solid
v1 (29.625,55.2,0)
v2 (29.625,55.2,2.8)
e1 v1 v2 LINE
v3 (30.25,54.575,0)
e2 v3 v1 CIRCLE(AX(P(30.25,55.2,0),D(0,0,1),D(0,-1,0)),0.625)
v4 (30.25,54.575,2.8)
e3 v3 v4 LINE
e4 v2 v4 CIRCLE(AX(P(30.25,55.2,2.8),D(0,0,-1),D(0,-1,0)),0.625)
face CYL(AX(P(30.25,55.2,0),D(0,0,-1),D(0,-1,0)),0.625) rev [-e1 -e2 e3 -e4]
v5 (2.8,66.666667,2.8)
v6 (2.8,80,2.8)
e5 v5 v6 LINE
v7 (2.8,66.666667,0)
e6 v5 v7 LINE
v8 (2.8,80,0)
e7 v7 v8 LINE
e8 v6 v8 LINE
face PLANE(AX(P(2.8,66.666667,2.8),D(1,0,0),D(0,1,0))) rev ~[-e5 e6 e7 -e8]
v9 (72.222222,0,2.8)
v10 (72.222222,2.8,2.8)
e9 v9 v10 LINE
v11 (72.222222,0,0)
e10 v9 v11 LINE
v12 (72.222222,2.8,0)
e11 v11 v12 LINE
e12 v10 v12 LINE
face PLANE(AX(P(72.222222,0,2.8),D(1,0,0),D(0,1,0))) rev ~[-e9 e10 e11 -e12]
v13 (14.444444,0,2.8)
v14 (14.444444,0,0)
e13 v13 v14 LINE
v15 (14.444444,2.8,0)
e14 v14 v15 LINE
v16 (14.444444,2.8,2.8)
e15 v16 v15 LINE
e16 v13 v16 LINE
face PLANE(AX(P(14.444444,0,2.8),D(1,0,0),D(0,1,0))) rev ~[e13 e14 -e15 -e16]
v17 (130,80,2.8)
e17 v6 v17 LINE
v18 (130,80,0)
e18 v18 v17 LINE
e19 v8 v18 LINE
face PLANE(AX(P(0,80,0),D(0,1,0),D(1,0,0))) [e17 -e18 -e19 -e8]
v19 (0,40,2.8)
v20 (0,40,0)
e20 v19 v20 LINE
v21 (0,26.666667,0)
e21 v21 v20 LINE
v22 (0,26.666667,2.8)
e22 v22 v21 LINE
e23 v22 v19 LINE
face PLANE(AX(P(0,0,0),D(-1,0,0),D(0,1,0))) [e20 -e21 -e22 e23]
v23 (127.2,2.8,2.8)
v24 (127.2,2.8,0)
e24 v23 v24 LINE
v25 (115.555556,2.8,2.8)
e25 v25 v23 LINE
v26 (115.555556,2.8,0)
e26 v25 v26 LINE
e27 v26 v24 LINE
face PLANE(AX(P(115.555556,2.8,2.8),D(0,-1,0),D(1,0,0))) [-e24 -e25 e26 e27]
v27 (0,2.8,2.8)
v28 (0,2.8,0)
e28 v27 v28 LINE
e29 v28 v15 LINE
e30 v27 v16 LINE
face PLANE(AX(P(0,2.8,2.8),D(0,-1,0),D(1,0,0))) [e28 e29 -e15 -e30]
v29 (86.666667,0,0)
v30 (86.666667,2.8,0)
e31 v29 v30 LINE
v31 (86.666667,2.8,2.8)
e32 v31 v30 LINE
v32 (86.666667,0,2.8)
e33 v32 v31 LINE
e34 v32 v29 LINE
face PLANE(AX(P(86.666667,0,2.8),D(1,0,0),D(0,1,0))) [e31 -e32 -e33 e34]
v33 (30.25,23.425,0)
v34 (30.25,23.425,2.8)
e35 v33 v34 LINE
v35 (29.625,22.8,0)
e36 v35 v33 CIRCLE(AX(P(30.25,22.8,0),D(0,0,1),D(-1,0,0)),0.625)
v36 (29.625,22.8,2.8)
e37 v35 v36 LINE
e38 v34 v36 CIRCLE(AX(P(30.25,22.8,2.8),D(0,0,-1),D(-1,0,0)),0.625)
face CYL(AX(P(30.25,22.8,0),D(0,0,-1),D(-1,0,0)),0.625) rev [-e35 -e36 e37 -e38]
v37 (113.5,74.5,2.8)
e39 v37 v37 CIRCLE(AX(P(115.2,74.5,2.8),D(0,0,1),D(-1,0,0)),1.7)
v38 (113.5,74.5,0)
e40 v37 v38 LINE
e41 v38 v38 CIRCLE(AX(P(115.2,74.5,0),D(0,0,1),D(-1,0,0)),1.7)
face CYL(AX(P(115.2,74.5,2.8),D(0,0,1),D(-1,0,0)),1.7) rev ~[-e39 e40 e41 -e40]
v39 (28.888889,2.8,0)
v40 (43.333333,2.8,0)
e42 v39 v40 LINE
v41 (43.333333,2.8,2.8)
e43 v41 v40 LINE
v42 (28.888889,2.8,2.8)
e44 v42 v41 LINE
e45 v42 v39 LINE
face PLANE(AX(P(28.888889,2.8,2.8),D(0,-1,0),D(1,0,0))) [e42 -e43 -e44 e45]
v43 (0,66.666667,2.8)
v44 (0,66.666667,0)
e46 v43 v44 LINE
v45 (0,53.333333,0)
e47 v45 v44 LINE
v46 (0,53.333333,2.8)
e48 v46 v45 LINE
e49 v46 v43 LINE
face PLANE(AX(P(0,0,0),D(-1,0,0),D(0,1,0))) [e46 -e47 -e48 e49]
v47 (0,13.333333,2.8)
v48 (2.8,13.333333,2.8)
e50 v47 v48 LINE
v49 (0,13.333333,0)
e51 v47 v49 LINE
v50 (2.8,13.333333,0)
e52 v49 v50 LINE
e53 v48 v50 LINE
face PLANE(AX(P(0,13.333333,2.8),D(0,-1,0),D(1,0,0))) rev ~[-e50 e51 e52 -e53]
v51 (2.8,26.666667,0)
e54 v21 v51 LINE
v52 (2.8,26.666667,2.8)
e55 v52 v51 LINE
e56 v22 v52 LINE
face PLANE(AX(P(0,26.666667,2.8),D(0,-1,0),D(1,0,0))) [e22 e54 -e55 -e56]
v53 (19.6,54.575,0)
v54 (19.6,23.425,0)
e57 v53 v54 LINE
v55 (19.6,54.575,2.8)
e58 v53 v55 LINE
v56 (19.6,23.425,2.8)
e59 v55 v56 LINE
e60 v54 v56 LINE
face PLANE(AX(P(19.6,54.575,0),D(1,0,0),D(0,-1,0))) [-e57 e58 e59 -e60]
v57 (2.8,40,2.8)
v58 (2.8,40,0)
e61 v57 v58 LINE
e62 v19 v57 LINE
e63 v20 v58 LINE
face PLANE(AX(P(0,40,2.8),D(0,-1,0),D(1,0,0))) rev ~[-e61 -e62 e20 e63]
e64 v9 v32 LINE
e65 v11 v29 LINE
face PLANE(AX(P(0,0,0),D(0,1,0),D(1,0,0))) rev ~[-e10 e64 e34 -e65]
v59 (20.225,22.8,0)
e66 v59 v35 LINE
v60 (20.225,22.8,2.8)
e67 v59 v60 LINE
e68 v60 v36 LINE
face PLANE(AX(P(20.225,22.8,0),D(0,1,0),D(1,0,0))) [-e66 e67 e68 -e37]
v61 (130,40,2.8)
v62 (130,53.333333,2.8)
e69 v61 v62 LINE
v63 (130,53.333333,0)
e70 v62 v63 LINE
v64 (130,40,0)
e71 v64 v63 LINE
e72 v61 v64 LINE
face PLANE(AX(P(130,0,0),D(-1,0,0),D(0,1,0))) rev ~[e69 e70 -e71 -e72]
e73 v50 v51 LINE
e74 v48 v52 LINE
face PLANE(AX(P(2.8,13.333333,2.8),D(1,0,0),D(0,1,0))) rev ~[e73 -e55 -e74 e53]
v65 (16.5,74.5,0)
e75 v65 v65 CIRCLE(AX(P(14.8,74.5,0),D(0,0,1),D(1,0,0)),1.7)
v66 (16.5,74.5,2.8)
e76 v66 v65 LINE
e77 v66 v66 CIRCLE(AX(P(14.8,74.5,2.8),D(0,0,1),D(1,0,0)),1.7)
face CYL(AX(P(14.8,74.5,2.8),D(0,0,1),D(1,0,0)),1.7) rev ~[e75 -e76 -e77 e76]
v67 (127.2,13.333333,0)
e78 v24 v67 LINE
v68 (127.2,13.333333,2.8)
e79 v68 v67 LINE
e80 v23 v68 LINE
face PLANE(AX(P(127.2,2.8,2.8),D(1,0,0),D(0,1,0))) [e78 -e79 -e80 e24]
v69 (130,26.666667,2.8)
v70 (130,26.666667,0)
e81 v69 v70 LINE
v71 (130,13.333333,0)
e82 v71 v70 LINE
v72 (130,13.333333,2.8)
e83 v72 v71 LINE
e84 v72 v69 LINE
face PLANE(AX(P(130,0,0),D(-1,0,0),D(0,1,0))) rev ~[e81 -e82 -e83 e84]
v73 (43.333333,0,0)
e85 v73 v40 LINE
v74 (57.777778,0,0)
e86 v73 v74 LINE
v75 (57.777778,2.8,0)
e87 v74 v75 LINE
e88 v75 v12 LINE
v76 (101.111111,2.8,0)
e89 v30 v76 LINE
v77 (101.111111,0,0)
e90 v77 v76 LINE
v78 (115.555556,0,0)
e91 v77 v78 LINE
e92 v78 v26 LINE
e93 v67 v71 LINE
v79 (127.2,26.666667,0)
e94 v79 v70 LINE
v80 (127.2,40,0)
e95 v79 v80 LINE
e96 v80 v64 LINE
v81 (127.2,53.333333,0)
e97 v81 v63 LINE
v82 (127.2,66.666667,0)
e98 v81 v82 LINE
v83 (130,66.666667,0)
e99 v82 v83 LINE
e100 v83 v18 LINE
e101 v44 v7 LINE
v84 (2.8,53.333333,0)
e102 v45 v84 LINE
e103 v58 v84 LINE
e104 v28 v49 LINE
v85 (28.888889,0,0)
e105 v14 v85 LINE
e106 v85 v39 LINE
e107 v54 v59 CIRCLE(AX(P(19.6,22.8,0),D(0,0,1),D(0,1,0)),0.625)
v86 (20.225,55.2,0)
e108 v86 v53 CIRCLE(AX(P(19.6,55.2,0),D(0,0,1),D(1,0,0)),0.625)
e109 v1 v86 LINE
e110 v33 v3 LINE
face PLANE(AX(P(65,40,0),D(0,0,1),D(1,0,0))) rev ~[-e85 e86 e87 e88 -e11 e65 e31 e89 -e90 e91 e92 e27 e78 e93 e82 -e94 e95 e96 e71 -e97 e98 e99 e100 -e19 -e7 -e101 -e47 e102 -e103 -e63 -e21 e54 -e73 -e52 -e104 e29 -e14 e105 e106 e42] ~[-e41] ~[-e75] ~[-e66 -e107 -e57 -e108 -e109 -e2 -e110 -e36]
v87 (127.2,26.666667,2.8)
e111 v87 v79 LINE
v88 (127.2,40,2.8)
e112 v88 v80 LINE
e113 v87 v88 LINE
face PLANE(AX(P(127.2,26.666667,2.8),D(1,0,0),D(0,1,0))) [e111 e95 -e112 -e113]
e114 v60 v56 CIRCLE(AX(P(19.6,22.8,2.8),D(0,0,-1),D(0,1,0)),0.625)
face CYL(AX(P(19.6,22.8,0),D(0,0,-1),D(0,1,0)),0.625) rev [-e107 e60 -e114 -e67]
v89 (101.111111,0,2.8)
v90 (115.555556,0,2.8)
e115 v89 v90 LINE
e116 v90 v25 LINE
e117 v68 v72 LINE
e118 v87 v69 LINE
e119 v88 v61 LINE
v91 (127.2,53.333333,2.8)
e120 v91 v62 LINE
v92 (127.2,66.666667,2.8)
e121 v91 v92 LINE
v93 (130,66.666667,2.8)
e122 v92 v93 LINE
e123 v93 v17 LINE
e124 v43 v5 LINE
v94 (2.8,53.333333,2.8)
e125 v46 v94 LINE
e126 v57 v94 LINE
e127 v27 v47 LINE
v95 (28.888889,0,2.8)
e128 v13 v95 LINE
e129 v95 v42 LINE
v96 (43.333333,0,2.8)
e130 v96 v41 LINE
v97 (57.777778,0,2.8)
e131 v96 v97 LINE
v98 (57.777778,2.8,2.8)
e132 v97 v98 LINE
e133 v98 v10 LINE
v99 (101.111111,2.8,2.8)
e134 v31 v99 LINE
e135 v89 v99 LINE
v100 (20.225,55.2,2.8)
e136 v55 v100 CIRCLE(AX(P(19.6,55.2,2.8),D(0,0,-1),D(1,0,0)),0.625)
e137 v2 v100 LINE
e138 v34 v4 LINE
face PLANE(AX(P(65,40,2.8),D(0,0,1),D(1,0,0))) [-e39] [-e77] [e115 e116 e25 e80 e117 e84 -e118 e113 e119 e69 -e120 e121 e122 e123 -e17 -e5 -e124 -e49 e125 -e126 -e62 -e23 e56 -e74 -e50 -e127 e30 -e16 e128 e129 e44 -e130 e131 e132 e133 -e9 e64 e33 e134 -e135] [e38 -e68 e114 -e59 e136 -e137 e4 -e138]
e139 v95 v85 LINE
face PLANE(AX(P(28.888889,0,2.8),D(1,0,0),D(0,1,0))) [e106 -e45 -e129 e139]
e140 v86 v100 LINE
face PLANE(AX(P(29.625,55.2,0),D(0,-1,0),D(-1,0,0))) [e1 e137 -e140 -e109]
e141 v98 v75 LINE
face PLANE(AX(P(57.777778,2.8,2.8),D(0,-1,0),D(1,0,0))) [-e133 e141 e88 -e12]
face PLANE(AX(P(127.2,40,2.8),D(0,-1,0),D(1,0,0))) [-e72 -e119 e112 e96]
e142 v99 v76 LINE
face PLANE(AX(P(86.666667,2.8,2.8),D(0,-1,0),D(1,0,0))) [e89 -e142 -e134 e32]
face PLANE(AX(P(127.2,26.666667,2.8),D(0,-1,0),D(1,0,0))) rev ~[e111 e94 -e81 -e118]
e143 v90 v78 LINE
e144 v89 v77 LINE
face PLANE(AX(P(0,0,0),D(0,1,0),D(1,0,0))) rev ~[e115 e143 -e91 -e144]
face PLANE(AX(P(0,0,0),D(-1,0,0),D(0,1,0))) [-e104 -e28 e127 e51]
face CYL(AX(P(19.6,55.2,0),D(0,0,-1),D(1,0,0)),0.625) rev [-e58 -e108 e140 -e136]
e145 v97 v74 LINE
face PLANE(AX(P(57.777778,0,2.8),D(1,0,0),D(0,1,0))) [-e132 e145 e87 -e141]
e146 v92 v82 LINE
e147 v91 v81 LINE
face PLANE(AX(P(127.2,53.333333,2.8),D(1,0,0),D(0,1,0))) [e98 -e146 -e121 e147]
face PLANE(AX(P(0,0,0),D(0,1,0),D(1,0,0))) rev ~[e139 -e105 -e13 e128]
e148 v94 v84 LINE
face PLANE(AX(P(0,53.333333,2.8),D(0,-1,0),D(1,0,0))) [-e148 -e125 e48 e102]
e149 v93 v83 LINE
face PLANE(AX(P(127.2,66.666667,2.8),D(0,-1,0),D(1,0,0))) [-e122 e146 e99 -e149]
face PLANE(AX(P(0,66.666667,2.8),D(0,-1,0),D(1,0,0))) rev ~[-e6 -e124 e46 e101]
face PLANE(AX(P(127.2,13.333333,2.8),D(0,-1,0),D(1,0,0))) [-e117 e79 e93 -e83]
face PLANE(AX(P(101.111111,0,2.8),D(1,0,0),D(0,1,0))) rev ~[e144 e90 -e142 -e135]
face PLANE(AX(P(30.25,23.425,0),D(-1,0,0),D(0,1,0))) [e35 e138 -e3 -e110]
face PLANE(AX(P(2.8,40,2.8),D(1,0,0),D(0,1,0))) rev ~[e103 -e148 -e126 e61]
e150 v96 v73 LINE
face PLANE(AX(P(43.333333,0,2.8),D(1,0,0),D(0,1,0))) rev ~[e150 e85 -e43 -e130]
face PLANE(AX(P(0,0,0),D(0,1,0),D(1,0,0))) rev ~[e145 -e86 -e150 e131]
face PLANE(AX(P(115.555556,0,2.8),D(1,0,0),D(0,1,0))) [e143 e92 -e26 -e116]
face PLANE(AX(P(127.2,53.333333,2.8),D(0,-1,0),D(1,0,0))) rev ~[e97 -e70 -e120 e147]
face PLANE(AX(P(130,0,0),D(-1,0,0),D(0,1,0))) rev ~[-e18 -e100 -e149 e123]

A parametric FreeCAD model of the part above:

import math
import FreeCAD as App
import Part
import Sketcher


def add_polygon(sketch, points):
    """Adds a closed chain of lines whose ends are joined by coincident constraints."""
    first, n = sketch.GeometryCount, len(points)
    for a, b in zip(points, points[1:] + points[:1]):
        sketch.addGeometry(Part.LineSegment(App.Vector(*a, 0), App.Vector(*b, 0)), False)
    for i in range(n):
        sketch.addConstraint(Sketcher.Constraint("Coincident", first + i, 2, first + (i + 1) % n, 1))

doc = App.newDocument("Part")
body = doc.addObject("PartDesign::Body", "Body")

sketch1 = doc.addObject("Sketcher::SketchObject", "Sketch")
body.addObject(sketch1)
sketch1.AttachmentSupport = (doc.XY_Plane, [""])
sketch1.MapMode = "FlatFace"
add_polygon(sketch1, [(0, 80), (0, 0), (130, 0), (130, 80)])
sketch1.addConstraint([
    Sketcher.Constraint("Vertical", 0),
    Sketcher.Constraint("Horizontal", 1),
    Sketcher.Constraint("Vertical", 2),
    Sketcher.Constraint("Horizontal", 3),
    Sketcher.Constraint("Coincident", 0, 2, -1, 1),
    Sketcher.Constraint("DistanceX", 1, 1, 1, 2, 130.0),
    Sketcher.Constraint("DistanceY", 0, 2, 0, 1, 80.0),
])
pad1 = doc.addObject("PartDesign::Pad", "Pad")
body.addObject(pad1)
pad1.Profile = sketch1
pad1.Length = 2.8

sketch2 = doc.addObject("Sketcher::SketchObject", "Sketch001")
body.addObject(sketch2)
sketch2.AttachmentSupport = (doc.XY_Plane, [""])
sketch2.MapMode = "FlatFace"
sketch2.AttachmentOffset = App.Placement(App.Vector(0, 0, 2.8), App.Rotation())
add_polygon(sketch2, [(0, 2.8), (0, 0), (14.4, 0), (14.4, 2.8)])
add_polygon(sketch2, [(28.9, 2.8), (28.9, 0), (43.3, 0), (43.3, 2.8)])
add_polygon(sketch2, [(57.8, 2.8), (57.8, 0), (72.2, 0), (72.2, 2.8)])
add_polygon(sketch2, [(86.7, 2.8), (86.7, 0), (101.1, 0), (101.1, 2.8)])
add_polygon(sketch2, [(115.6, 2.8), (115.6, 0), (130, 0), (130, 13.3), (127.2, 13.3), (127.2, 2.8)])
add_polygon(sketch2, [(0, 26.7), (0, 13.3), (2.8, 13.3), (2.8, 26.7)])
add_polygon(sketch2, [(0, 53.3), (0, 40), (2.8, 40), (2.8, 53.3)])
add_polygon(sketch2, [(0, 80), (0, 66.7), (2.8, 66.7), (2.8, 80)])
add_polygon(sketch2, [(127.2, 40), (127.2, 26.7), (130, 26.7), (130, 40)])
add_polygon(sketch2, [(127.2, 66.7), (127.2, 53.3), (130, 53.3), (130, 66.7)])
sketch2.addConstraint([
    Sketcher.Constraint("Vertical", 0),
    Sketcher.Constraint("Horizontal", 1),
    Sketcher.Constraint("Vertical", 2),
    Sketcher.Constraint("Horizontal", 3),
    Sketcher.Constraint("Vertical", 4),
    Sketcher.Constraint("Horizontal", 5),
    Sketcher.Constraint("Vertical", 6),
    Sketcher.Constraint("Horizontal", 7),
    Sketcher.Constraint("Vertical", 8),
    Sketcher.Constraint("Horizontal", 9),
    Sketcher.Constraint("Vertical", 10),
    Sketcher.Constraint("Horizontal", 11),
    Sketcher.Constraint("Vertical", 12),
    Sketcher.Constraint("Horizontal", 13),
    Sketcher.Constraint("Vertical", 14),
    Sketcher.Constraint("Horizontal", 15),
    Sketcher.Constraint("Vertical", 16),
    Sketcher.Constraint("Horizontal", 17),
    Sketcher.Constraint("Vertical", 18),
    Sketcher.Constraint("Horizontal", 19),
    Sketcher.Constraint("Vertical", 20),
    Sketcher.Constraint("Horizontal", 21),
    Sketcher.Constraint("Vertical", 22),
    Sketcher.Constraint("Horizontal", 23),
    Sketcher.Constraint("Vertical", 24),
    Sketcher.Constraint("Horizontal", 25),
    Sketcher.Constraint("Vertical", 26),
    Sketcher.Constraint("Horizontal", 27),
    Sketcher.Constraint("Vertical", 28),
    Sketcher.Constraint("Horizontal", 29),
    Sketcher.Constraint("Vertical", 30),
    Sketcher.Constraint("Horizontal", 31),
    Sketcher.Constraint("Vertical", 32),
    Sketcher.Constraint("Horizontal", 33),
    Sketcher.Constraint("Vertical", 34),
    Sketcher.Constraint("Horizontal", 35),
    Sketcher.Constraint("Vertical", 36),
    Sketcher.Constraint("Horizontal", 37),
    Sketcher.Constraint("Vertical", 38),
    Sketcher.Constraint("Horizontal", 39),
    Sketcher.Constraint("Vertical", 40),
    Sketcher.Constraint("Horizontal", 41),
    Sketcher.Constraint("Coincident", 0, 2, -1, 1),
    Sketcher.Constraint("PointOnObject", 4, 2, -1),
    Sketcher.Constraint("PointOnObject", 8, 2, -1),
    Sketcher.Constraint("PointOnObject", 12, 2, -1),
    Sketcher.Constraint("PointOnObject", 16, 2, -1),
    Sketcher.Constraint("PointOnObject", 22, 2, -2),
    Sketcher.Constraint("PointOnObject", 26, 2, -2),
    Sketcher.Constraint("PointOnObject", 30, 2, -2),
    Sketcher.Constraint("Horizontal", 3, 2, 6, 2),
    Sketcher.Constraint("Horizontal", 7, 2, 10, 2),
    Sketcher.Constraint("Horizontal", 11, 2, 14, 2),
    Sketcher.Constraint("Horizontal", 15, 2, 20, 2),
    Sketcher.Constraint("Horizontal", 19, 2, 22, 2),
    Sketcher.Constraint("Horizontal", 25, 2, 34, 2),
    Sketcher.Constraint("Horizontal", 27, 2, 36, 2),
    Sketcher.Constraint("Horizontal", 29, 2, 38, 2),
    Sketcher.Constraint("Horizontal", 31, 2, 40, 2),
    Sketcher.Constraint("Vertical", 24, 2, 27, 2),
    Sketcher.Constraint("Vertical", 28, 2, 31, 2),
    Sketcher.Constraint("Vertical", 20, 2, 34, 2),
    Sketcher.Constraint("Vertical", 18, 2, 35, 2),
    Sketcher.Constraint("Vertical", 37, 2, 38, 2),
    Sketcher.Constraint("Vertical", 36, 2, 39, 2),
    Sketcher.Constraint("Equal", 3, 5),
    Sketcher.Constraint("Equal", 7, 9),
    Sketcher.Constraint("Equal", 11, 13),
    Sketcher.Constraint("Equal", 15, 17),
    Sketcher.Constraint("Equal", 19, 23),
    Sketcher.Constraint("Equal", 41, 0),
    Sketcher.Constraint("Equal", 18, 22),
    Sketcher.Constraint("Equal", 24, 26),
    Sketcher.Constraint("Equal", 28, 30),
    Sketcher.Constraint("Equal", 32, 34),
    Sketcher.Constraint("Equal", 36, 38),
    Sketcher.Constraint("DistanceX", 19, 2, 19, 1, 2.8),
    Sketcher.Constraint("DistanceX", -1, 1, 17, 2, 130.0),
    Sketcher.Constraint("DistanceY", -1, 1, 26, 2, 40.0),
    Sketcher.Constraint("DistanceX", 1, 1, 1, 2, 14.444444),
    Sketcher.Constraint("DistanceX", -1, 1, 4, 2, 28.888889),
    Sketcher.Constraint("DistanceX", -1, 1, 13, 2, 101.111111),
    Sketcher.Constraint("DistanceX", 4, 2, 8, 2, 28.888889),
])
pocket1 = doc.addObject("PartDesign::Pocket", "Pocket")
body.addObject(pocket1)
pocket1.Profile = sketch2
pocket1.Type = "ThroughAll"

sketch3 = doc.addObject("Sketcher::SketchObject", "Sketch002")
body.addObject(sketch3)
sketch3.AttachmentSupport = (doc.XY_Plane, [""])
sketch3.MapMode = "FlatFace"
sketch3.AttachmentOffset = App.Placement(App.Vector(0, 0, 2.8), App.Rotation())
sketch3.addGeometry(Part.Circle(App.Vector(14.8, 74.5, 0), App.Vector(0, 0, 1), 1.7), False)
sketch3.addConstraint([
    Sketcher.Constraint("Diameter", 0, 3.4),
    Sketcher.Constraint("DistanceX", -1, 1, 0, 3, 14.8),
    Sketcher.Constraint("DistanceY", -1, 1, 0, 3, 74.5),
])
pocket2 = doc.addObject("PartDesign::Pocket", "Pocket001")
body.addObject(pocket2)
pocket2.Profile = sketch3
pocket2.Type = "UpToFirst"

sketch4 = doc.addObject("Sketcher::SketchObject", "Sketch003")
body.addObject(sketch4)
sketch4.AttachmentSupport = (doc.XY_Plane, [""])
sketch4.MapMode = "FlatFace"
sketch4.AttachmentOffset = App.Placement(App.Vector(0, 0, 2.8), App.Rotation())
sketch4.addGeometry(Part.Circle(App.Vector(115.2, 74.5, 0), App.Vector(0, 0, 1), 1.7), False)
sketch4.addConstraint([
    Sketcher.Constraint("Diameter", 0, 3.4),
    Sketcher.Constraint("DistanceX", -1, 1, 0, 3, 115.2),
    Sketcher.Constraint("DistanceY", -1, 1, 0, 3, 74.5),
])
pocket3 = doc.addObject("PartDesign::Pocket", "Pocket002")
body.addObject(pocket3)
pocket3.Profile = sketch4
pocket3.Type = "UpToFirst"

sketch5 = doc.addObject("Sketcher::SketchObject", "Sketch004")
body.addObject(sketch5)
sketch5.AttachmentSupport = (doc.XY_Plane, [""])
sketch5.MapMode = "FlatFace"
sketch5.addGeometry([
    Part.LineSegment(App.Vector(20.2, 55.2, 0), App.Vector(29.6, 55.2, 0)),
    Part.ArcOfCircle(Part.Circle(App.Vector(30.2, 55.2, 0), App.Vector(0, 0, 1), 0.6), math.radians(-90), math.radians(180)),
    Part.LineSegment(App.Vector(30.2, 54.6, 0), App.Vector(30.2, 23.4, 0)),
    Part.ArcOfCircle(Part.Circle(App.Vector(30.2, 22.8, 0), App.Vector(0, 0, 1), 0.6), math.radians(180), math.radians(450)),
    Part.LineSegment(App.Vector(29.6, 22.8, 0), App.Vector(20.2, 22.8, 0)),
    Part.ArcOfCircle(Part.Circle(App.Vector(19.6, 22.8, 0), App.Vector(0, 0, 1), 0.6), math.radians(90), math.radians(360)),
    Part.LineSegment(App.Vector(19.6, 23.4, 0), App.Vector(19.6, 54.6, 0)),
    Part.ArcOfCircle(Part.Circle(App.Vector(19.6, 55.2, 0), App.Vector(0, 0, 1), 0.6), math.radians(0), math.radians(270)),
], False)
sketch5.addConstraint([
    Sketcher.Constraint("Coincident", 0, 2, 1, 2),
    Sketcher.Constraint("Coincident", 1, 1, 2, 1),
    Sketcher.Constraint("Coincident", 2, 2, 3, 2),
    Sketcher.Constraint("Coincident", 3, 1, 4, 1),
    Sketcher.Constraint("Coincident", 4, 2, 5, 2),
    Sketcher.Constraint("Coincident", 5, 1, 6, 1),
    Sketcher.Constraint("Coincident", 6, 2, 7, 2),
    Sketcher.Constraint("Coincident", 7, 1, 0, 1),
    Sketcher.Constraint("Horizontal", 0),
    Sketcher.Constraint("Vertical", 2),
    Sketcher.Constraint("Horizontal", 4),
    Sketcher.Constraint("Vertical", 6),
    Sketcher.Constraint("Equal", 1, 3),
    Sketcher.Constraint("Equal", 3, 5),
    Sketcher.Constraint("Equal", 5, 7),
    Sketcher.Constraint("Horizontal", 3, 3, 5, 3),
    Sketcher.Constraint("Horizontal", 1, 3, 7, 3),
    Sketcher.Constraint("Horizontal", 7, 3, 0, 2),
    Sketcher.Constraint("Horizontal", 5, 3, 3, 1),
    Sketcher.Constraint("Vertical", 1, 3, 3, 3),
    Sketcher.Constraint("Vertical", 5, 3, 7, 3),
    Sketcher.Constraint("Vertical", 3, 3, 1, 1),
    Sketcher.Constraint("Vertical", 7, 3, 5, 1),
    Sketcher.Constraint("DistanceX", 0, 1, 0, 2, 9.4),
    Sketcher.Constraint("Radius", 1, 0.625),
    Sketcher.Constraint("DistanceY", 2, 2, 2, 1, 31.15),
    Sketcher.Constraint("DistanceY", -1, 1, 1, 3, 55.2),
    Sketcher.Constraint("DistanceX", -1, 1, 5, 3, 19.6),
])
pocket4 = doc.addObject("PartDesign::Pocket", "Pocket003")
body.addObject(pocket4)
pocket4.Profile = sketch5
pocket4.Type = "UpToFirst"
pocket4.Reversed = True

doc.recompute()
